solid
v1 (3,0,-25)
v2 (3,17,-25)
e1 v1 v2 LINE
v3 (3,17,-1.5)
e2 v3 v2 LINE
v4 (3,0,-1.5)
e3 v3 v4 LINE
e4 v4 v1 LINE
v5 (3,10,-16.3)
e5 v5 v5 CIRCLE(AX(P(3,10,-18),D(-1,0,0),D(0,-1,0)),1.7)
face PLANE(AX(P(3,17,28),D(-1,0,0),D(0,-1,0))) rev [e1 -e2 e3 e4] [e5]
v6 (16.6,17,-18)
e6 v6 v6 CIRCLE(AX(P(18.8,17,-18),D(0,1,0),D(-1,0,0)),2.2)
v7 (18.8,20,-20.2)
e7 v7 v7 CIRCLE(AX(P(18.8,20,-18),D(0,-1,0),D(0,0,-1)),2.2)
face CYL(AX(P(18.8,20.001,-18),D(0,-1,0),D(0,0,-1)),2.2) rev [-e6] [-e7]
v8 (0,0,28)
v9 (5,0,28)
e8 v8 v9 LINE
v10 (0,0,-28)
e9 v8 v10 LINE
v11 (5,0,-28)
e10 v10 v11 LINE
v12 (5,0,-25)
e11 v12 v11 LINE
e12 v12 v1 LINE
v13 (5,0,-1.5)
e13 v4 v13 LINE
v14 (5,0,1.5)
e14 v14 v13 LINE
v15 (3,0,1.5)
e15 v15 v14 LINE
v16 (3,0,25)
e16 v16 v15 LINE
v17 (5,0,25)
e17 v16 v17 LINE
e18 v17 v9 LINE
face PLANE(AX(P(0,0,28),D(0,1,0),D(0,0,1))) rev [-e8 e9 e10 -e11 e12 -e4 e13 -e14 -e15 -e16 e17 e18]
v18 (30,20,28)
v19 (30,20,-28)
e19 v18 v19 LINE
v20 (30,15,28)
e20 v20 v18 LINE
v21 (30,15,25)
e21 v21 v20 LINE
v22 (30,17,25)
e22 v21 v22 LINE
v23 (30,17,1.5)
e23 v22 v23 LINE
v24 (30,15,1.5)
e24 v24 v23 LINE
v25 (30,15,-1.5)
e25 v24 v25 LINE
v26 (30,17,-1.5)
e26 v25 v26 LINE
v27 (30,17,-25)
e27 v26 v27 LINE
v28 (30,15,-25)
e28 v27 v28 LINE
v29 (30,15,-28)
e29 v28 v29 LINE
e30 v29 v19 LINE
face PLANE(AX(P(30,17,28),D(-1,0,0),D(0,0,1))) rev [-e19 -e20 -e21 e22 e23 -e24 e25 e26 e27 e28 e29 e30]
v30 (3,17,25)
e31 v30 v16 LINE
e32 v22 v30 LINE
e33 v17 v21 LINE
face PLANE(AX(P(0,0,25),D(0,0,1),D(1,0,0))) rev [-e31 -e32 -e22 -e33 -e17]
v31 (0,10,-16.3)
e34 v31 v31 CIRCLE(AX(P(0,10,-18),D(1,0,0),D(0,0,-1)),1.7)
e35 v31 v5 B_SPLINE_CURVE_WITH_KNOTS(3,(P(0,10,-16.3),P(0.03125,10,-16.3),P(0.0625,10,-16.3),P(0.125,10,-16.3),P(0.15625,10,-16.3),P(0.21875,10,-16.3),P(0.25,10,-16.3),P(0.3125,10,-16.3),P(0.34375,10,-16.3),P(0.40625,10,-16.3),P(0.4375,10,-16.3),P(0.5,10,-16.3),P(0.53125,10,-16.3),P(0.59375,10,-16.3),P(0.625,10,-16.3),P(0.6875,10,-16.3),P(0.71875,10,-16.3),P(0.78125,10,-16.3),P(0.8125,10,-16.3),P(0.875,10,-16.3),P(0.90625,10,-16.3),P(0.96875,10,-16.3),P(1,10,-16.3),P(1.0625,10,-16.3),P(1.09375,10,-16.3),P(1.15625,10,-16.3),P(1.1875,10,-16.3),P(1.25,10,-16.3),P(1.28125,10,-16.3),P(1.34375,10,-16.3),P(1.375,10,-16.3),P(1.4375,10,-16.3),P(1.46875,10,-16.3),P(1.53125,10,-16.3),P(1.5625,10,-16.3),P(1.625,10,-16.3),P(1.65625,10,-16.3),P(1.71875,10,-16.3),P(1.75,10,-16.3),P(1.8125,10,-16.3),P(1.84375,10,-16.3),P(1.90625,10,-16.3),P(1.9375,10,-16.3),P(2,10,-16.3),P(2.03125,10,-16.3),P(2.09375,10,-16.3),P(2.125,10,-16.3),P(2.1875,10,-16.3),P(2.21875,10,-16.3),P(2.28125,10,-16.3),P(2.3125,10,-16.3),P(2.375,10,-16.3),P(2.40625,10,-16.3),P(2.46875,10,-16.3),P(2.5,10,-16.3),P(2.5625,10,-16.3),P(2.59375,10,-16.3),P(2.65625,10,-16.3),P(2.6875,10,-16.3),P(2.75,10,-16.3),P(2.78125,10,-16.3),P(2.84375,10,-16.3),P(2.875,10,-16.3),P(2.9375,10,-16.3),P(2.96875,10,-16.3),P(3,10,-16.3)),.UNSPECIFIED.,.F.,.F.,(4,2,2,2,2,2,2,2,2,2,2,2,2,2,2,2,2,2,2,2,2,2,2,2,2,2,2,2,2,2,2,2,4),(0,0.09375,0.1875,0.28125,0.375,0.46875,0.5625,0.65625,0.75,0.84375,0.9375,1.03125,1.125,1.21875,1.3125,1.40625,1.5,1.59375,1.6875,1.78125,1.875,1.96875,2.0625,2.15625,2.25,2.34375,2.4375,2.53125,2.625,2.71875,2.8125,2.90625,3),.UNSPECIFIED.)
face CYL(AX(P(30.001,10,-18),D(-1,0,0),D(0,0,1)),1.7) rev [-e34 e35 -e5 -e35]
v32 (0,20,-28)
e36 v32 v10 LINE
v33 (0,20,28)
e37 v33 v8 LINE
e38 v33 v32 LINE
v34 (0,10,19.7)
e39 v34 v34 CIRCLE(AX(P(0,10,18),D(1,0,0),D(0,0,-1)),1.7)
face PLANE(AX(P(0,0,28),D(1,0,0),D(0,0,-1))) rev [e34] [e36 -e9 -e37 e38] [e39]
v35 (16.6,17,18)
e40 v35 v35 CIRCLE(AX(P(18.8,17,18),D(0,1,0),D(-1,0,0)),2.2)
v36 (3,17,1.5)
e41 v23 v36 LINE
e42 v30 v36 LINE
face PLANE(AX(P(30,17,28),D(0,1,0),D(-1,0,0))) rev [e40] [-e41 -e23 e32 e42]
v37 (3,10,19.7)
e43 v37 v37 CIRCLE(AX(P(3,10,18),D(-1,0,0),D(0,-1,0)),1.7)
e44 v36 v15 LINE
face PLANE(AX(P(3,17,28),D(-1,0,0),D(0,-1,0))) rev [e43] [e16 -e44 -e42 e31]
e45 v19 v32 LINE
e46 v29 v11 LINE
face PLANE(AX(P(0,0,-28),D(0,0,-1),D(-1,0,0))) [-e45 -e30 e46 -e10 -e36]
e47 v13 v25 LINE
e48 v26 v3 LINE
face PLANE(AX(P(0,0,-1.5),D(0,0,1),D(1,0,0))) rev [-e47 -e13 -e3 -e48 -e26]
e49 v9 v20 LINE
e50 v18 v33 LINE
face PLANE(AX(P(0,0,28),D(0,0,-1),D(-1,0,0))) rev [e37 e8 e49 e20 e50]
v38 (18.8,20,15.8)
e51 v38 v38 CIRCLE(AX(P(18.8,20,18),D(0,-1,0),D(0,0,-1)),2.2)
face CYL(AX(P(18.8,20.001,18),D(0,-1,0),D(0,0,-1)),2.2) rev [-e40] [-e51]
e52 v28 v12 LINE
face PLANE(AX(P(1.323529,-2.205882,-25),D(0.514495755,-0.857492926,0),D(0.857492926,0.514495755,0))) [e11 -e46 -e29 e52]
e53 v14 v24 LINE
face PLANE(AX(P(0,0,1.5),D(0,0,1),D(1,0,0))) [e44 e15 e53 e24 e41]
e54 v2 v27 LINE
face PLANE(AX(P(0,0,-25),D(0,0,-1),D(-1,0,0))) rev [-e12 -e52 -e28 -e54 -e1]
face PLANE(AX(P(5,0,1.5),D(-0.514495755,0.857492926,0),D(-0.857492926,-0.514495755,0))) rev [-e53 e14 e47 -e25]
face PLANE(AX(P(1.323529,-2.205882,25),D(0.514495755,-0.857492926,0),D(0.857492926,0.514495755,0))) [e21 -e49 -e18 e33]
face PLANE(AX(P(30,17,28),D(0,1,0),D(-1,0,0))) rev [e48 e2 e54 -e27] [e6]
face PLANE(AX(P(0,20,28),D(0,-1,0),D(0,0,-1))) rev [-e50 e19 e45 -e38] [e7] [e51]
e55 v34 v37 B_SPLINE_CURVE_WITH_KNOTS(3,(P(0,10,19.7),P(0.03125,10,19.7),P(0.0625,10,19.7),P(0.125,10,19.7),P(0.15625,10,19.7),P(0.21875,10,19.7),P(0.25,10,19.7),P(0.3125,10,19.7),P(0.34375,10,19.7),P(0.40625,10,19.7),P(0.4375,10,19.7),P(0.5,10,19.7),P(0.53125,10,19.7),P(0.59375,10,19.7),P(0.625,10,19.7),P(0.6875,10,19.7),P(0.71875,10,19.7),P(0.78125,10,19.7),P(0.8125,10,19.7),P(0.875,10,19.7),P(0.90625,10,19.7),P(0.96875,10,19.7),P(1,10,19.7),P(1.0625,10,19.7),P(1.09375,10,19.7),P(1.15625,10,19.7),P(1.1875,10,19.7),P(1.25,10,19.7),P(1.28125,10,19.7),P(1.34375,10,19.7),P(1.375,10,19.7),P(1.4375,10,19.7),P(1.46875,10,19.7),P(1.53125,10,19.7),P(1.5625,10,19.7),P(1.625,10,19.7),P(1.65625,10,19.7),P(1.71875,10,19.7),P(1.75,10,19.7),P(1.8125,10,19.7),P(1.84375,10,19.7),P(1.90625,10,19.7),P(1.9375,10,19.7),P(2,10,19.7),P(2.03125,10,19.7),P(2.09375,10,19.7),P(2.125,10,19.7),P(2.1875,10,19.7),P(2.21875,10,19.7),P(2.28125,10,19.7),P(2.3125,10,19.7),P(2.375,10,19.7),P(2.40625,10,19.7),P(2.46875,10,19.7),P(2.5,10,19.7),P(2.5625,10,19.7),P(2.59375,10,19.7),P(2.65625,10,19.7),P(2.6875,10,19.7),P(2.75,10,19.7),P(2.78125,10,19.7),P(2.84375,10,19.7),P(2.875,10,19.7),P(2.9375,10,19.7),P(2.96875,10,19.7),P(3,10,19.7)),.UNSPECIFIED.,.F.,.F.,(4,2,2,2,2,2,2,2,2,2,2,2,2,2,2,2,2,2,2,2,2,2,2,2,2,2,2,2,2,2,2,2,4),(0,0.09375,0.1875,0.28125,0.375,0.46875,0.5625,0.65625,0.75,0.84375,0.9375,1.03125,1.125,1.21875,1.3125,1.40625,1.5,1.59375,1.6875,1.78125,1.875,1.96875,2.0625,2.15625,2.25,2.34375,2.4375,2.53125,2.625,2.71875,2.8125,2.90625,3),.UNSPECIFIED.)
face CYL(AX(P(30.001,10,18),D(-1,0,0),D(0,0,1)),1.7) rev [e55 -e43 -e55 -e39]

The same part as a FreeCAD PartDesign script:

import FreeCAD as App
import Part
import Sketcher
Q = App.Units.Quantity


def add_polygon(sketch, points):
    """Adds a closed chain of lines whose ends are joined by coincident constraints."""
    first, n = sketch.GeometryCount, len(points)
    for a, b in zip(points, points[1:] + points[:1]):
        sketch.addGeometry(Part.LineSegment(App.Vector(*a, 0), App.Vector(*b, 0)), False)
    for i in range(n):
        sketch.addConstraint(Sketcher.Constraint("Coincident", first + i, 2, first + (i + 1) % n, 1))

doc = App.newDocument("Part")
body = doc.addObject("PartDesign::Body", "Body")

sketch1 = body.newObject("Sketcher::SketchObject", "Sketch")
sketch1.AttachmentSupport = (doc.getObject("XY_Plane"), [""])
sketch1.MapMode = "FlatFace"
add_polygon(sketch1, [(0, 20), (0, 0), (3, 0), (3, 17), (30, 17), (30, 20)])
sketch1.addConstraint(Sketcher.Constraint("Vertical", 0))
sketch1.addConstraint(Sketcher.Constraint("Horizontal", 1))
sketch1.addConstraint(Sketcher.Constraint("Vertical", 2))
sketch1.addConstraint(Sketcher.Constraint("Horizontal", 3))
sketch1.addConstraint(Sketcher.Constraint("Vertical", 4))
sketch1.addConstraint(Sketcher.Constraint("Horizontal", 5))
sketch1.addConstraint(Sketcher.Constraint("Coincident", 0, 2, -1, 1))
sketch1.addConstraint(Sketcher.Constraint("Equal", 1, 4))
sketch1.addConstraint(Sketcher.Constraint("DistanceX", 1, 1, 1, 2, Q("3 mm")))
sketch1.addConstraint(Sketcher.Constraint("DistanceX", 3, 1, 3, 2, Q("27 mm")))
sketch1.addConstraint(Sketcher.Constraint("DistanceY", 0, 2, 0, 1, Q("20 mm")))
pad1 = body.newObject("PartDesign::Pad", "Pad")
pad1.Profile = sketch1
pad1.Length = 56
pad1.Midplane = True

sketch2 = body.newObject("Sketcher::SketchObject", "Sketch001")
sketch2.AttachmentSupport = (doc.getObject("XY_Plane"), [""])
sketch2.MapMode = "FlatFace"
sketch2.AttachmentOffset = App.Placement(App.Vector(0, 0, 28), App.Rotation())
add_polygon(sketch2, [(3, 0), (5, 0), (30, 15), (30, 17), (3, 17)])
sketch2.addConstraint(Sketcher.Constraint("Horizontal", 0))
sketch2.addConstraint(Sketcher.Constraint("Vertical", 2))
sketch2.addConstraint(Sketcher.Constraint("Horizontal", 3))
sketch2.addConstraint(Sketcher.Constraint("Vertical", 4))
sketch2.addConstraint(Sketcher.Constraint("PointOnObject", 0, 2, -1))
sketch2.addConstraint(Sketcher.Constraint("Equal", 0, 2))
sketch2.addConstraint(Sketcher.Constraint("DistanceX", 0, 1, 0, 2, Q("2 mm")))
sketch2.addConstraint(Sketcher.Constraint("DistanceX", 3, 2, 3, 1, Q("27 mm")))
sketch2.addConstraint(Sketcher.Constraint("DistanceY", 4, 2, 4, 1, Q("17 mm")))
sketch2.addConstraint(Sketcher.Constraint("DistanceX", -1, 1, 0, 2, Q("5 mm")))
pad2 = body.newObject("PartDesign::Pad", "Pad001")
pad2.Profile = sketch2
pad2.Length = 3
pad2.Reversed = True

sketch3 = body.newObject("Sketcher::SketchObject", "Sketch002")
sketch3.AttachmentSupport = (doc.getObject("XY_Plane"), [""])
sketch3.MapMode = "FlatFace"
add_polygon(sketch3, [(3, 0), (5, 0), (30, 15), (30, 17), (3, 17)])
sketch3.addConstraint(Sketcher.Constraint("Horizontal", 0))
sketch3.addConstraint(Sketcher.Constraint("Vertical", 2))
sketch3.addConstraint(Sketcher.Constraint("Horizontal", 3))
sketch3.addConstraint(Sketcher.Constraint("Vertical", 4))
sketch3.addConstraint(Sketcher.Constraint("PointOnObject", 0, 2, -1))
sketch3.addConstraint(Sketcher.Constraint("Equal", 0, 2))
sketch3.addConstraint(Sketcher.Constraint("DistanceX", 0, 1, 0, 2, Q("2 mm")))
sketch3.addConstraint(Sketcher.Constraint("DistanceX", 3, 2, 3, 1, Q("27 mm")))
sketch3.addConstraint(Sketcher.Constraint("DistanceY", 4, 2, 4, 1, Q("17 mm")))
sketch3.addConstraint(Sketcher.Constraint("DistanceX", -1, 1, 0, 2, Q("5 mm")))
pad3 = body.newObject("PartDesign::Pad", "Pad002")
pad3.Profile = sketch3
pad3.Length = 3
pad3.Midplane = True

sketch4 = body.newObject("Sketcher::SketchObject", "Sketch003")
sketch4.AttachmentSupport = (doc.getObject("XY_Plane"), [""])
sketch4.MapMode = "FlatFace"
sketch4.AttachmentOffset = App.Placement(App.Vector(0, 0, -28), App.Rotation())
add_polygon(sketch4, [(3, 0), (5, 0), (30, 15), (30, 17), (3, 17)])
sketch4.addConstraint(Sketcher.Constraint("Horizontal", 0))
sketch4.addConstraint(Sketcher.Constraint("Vertical", 2))
sketch4.addConstraint(Sketcher.Constraint("Horizontal", 3))
sketch4.addConstraint(Sketcher.Constraint("Vertical", 4))
sketch4.addConstraint(Sketcher.Constraint("PointOnObject", 0, 2, -1))
sketch4.addConstraint(Sketcher.Constraint("Equal", 0, 2))
sketch4.addConstraint(Sketcher.Constraint("DistanceX", 0, 1, 0, 2, Q("2 mm")))
sketch4.addConstraint(Sketcher.Constraint("DistanceX", 3, 2, 3, 1, Q("27 mm")))
sketch4.addConstraint(Sketcher.Constraint("DistanceY", 4, 2, 4, 1, Q("17 mm")))
sketch4.addConstraint(Sketcher.Constraint("DistanceX", -1, 1, 0, 2, Q("5 mm")))
pad4 = body.newObject("PartDesign::Pad", "Pad003")
pad4.Profile = sketch4
pad4.Length = 3

sketch5 = body.newObject("Sketcher::SketchObject", "Sketch004")
sketch5.AttachmentSupport = (doc.getObject("XZ_Plane"), [""])
sketch5.MapMode = "FlatFace"
sketch5.addGeometry(Part.Circle(App.Vector(18.8, -18, 0), App.Vector(0, 0, 1), 2.2), False)
sketch5.addConstraint(Sketcher.Constraint("Diameter", 0, Q("4.4 mm")))
sketch5.addConstraint(Sketcher.Constraint("DistanceY", 0, 3, -1, 1, Q("18 mm")))
sketch5.addConstraint(Sketcher.Constraint("DistanceX", -1, 1, 0, 3, Q("18.8 mm")))
pocket1 = body.newObject("PartDesign::Pocket", "Pocket")
pocket1.Profile = sketch5
pocket1.Length = 20

sketch6 = body.newObject("Sketcher::SketchObject", "Sketch005")
sketch6.AttachmentSupport = (doc.getObject("XZ_Plane"), [""])
sketch6.MapMode = "FlatFace"
sketch6.addGeometry(Part.Circle(App.Vector(18.8, 18, 0), App.Vector(0, 0, 1), 2.2), False)
sketch6.addConstraint(Sketcher.Constraint("Diameter", 0, Q("4.4 mm")))
sketch6.addConstraint(Sketcher.Constraint("DistanceY", -1, 1, 0, 3, Q("18 mm")))
sketch6.addConstraint(Sketcher.Constraint("DistanceX", -1, 1, 0, 3, Q("18.8 mm")))
pocket2 = body.newObject("PartDesign::Pocket", "Pocket001")
pocket2.Profile = sketch6
pocket2.Length = 20

sketch7 = body.newObject("Sketcher::SketchObject", "Sketch006")
sketch7.AttachmentSupport = (doc.getObject("YZ_Plane"), [""])
sketch7.MapMode = "FlatFace"
sketch7.addGeometry(Part.Circle(App.Vector(10, 18, 0), App.Vector(0, 0, 1), 1.7), False)
sketch7.addConstraint(Sketcher.Constraint("Diameter", 0, Q("3.4 mm")))
sketch7.addConstraint(Sketcher.Constraint("DistanceX", -1, 1, 0, 3, Q("10 mm")))
sketch7.addConstraint(Sketcher.Constraint("DistanceY", -1, 1, 0, 3, Q("18 mm")))
pocket3 = body.newObject("PartDesign::Pocket", "Pocket002")
pocket3.Profile = sketch7
pocket3.Type = "UpToFirst"
pocket3.Reversed = True

sketch8 = body.newObject("Sketcher::SketchObject", "Sketch007")
sketch8.AttachmentSupport = (doc.getObject("YZ_Plane"), [""])
sketch8.MapMode = "FlatFace"
sketch8.addGeometry(Part.Circle(App.Vector(10, -18, 0), App.Vector(0, 0, 1), 1.7), False)
sketch8.addConstraint(Sketcher.Constraint("Diameter", 0, Q("3.4 mm")))
sketch8.addConstraint(Sketcher.Constraint("DistanceX", -1, 1, 0, 3, Q("10 mm")))
sketch8.addConstraint(Sketcher.Constraint("DistanceY", 0, 3, -1, 1, Q("18 mm")))
pocket4 = body.newObject("PartDesign::Pocket", "Pocket003")
pocket4.Profile = sketch8
pocket4.Type = "UpToFirst"
pocket4.Reversed = True

doc.recompute()
